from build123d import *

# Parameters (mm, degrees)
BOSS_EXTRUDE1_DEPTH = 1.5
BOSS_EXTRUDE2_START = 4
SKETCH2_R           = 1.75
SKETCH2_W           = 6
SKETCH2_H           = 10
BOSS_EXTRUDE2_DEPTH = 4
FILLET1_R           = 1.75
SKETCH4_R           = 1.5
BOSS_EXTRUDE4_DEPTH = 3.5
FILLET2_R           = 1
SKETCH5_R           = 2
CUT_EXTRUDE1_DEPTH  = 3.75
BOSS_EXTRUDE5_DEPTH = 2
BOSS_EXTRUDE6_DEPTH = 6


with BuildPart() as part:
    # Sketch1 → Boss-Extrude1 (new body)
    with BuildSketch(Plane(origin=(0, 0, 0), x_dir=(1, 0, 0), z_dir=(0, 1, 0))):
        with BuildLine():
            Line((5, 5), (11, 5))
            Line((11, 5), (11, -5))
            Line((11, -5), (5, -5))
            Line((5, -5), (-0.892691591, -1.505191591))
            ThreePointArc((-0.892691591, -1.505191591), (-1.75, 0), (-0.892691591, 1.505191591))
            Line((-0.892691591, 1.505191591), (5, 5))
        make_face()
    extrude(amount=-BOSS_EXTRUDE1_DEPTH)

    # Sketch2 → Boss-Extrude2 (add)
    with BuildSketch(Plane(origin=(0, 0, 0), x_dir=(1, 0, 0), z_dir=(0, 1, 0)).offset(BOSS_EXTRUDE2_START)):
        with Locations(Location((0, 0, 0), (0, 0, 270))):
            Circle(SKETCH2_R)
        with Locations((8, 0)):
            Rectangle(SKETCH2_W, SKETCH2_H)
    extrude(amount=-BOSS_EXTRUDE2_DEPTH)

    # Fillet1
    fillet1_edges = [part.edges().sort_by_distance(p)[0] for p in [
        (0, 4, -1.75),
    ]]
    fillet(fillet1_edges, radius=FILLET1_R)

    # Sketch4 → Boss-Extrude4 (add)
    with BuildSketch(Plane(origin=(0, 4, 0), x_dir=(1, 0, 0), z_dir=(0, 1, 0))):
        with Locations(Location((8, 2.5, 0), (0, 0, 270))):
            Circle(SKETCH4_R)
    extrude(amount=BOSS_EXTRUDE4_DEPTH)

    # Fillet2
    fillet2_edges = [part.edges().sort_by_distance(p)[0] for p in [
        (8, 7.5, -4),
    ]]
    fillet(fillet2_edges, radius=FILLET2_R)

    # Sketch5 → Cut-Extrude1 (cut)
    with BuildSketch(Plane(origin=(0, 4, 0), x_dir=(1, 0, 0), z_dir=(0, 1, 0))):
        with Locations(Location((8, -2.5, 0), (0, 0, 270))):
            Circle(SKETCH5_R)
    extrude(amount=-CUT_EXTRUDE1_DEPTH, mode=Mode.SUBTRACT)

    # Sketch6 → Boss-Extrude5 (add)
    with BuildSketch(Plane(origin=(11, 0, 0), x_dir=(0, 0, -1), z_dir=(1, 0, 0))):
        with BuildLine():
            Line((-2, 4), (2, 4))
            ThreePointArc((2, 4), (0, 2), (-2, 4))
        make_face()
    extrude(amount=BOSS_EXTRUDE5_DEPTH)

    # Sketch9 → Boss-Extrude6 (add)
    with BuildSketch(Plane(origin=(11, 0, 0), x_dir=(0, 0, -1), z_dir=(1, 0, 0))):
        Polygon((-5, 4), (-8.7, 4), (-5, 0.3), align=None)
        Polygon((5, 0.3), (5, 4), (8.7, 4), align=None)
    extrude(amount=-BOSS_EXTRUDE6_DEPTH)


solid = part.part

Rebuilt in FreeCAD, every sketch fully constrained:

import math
import FreeCAD as App
import Part
import Sketcher


def edges_at(feature, points):
    """Names of the edges that pass closest to the given points."""
    edges = feature.Shape.Edges
    near = lambda p: min(range(len(edges)), key=lambda i: edges[i].distToShape(Part.Vertex(*p))[0])
    return sorted({f"Edge{near(p) + 1}" for p in points})

doc = App.newDocument("Part")
body = doc.addObject("PartDesign::Body", "Body")

# Sketch on XZ plane
sketch1 = body.newObject("Sketcher::SketchObject", "Sketch")
sketch1.AttachmentSupport = (doc.getObject("XZ_Plane"), [""])
sketch1.MapMode = "FlatFace"
sketch1.addGeometry([
    Part.LineSegment(App.Vector(11, -5, 0), App.Vector(5, -5, 0)),  # 0
    Part.LineSegment(App.Vector(5, -5, 0), App.Vector(-0.9, -1.5, 0)),  # 1
    Part.ArcOfCircle(Part.Circle(App.Vector(0, 0, 0), App.Vector(0, 0, 1), 1.8), math.radians(121), math.radians(239)),  # 2
    Part.LineSegment(App.Vector(-0.9, 1.5, 0), App.Vector(5, 5, 0)),  # 3
    Part.LineSegment(App.Vector(5, 5, 0), App.Vector(11, 5, 0)),  # 4
    Part.LineSegment(App.Vector(11, 5, 0), App.Vector(11, -5, 0)),  # 5
], False)
sketch1.addConstraint([
    Sketcher.Constraint("Coincident", 0, 2, 1, 1),
    Sketcher.Constraint("Tangent", 1, 2, 2, 2),
    Sketcher.Constraint("Tangent", 2, 1, 3, 1),
    Sketcher.Constraint("Coincident", 3, 2, 4, 1),
    Sketcher.Constraint("Coincident", 4, 2, 5, 1),
    Sketcher.Constraint("Coincident", 5, 2, 0, 1),
    Sketcher.Constraint("Horizontal", 0),
    Sketcher.Constraint("Horizontal", 4),
    Sketcher.Constraint("Vertical", 5),
    Sketcher.Constraint("Coincident", 2, 3, -1, 1),
    Sketcher.Constraint("Symmetric", 0, 2, 3, 2, -1),
    Sketcher.Constraint("DistanceX", 0, 2, 0, 1, 6.0),
    Sketcher.Constraint("DistanceY", 5, 2, 5, 1, 10.0),
    Sketcher.Constraint("Radius", 2, 1.75),
    Sketcher.Constraint("DistanceX", -1, 1, 0, 2, 5.0),
])
pad1 = body.newObject("PartDesign::Pad", "Pad")
pad1.Profile = sketch1
pad1.Length = 1.5

# Sketch on XZ plane
sketch2 = body.newObject("Sketcher::SketchObject", "Sketch001")
sketch2.AttachmentSupport = (doc.getObject("XZ_Plane"), [""])
sketch2.MapMode = "FlatFace"
sketch2.AttachmentOffset = App.Placement(App.Vector(0, 0, -4), App.Rotation())
sketch2.addGeometry([
    Part.Circle(App.Vector(0, 0, 0), App.Vector(0, 0, 1), 1.8),  # 0
    Part.LineSegment(App.Vector(5, -5, 0), App.Vector(5, 5, 0)),  # 1
    Part.LineSegment(App.Vector(5, 5, 0), App.Vector(11, 5, 0)),  # 2
    Part.LineSegment(App.Vector(11, 5, 0), App.Vector(11, -5, 0)),  # 3
    Part.LineSegment(App.Vector(11, -5, 0), App.Vector(5, -5, 0)),  # 4
], False)
sketch2.addConstraint([
    Sketcher.Constraint("Coincident", 1, 2, 2, 1),
    Sketcher.Constraint("Coincident", 2, 2, 3, 1),
    Sketcher.Constraint("Coincident", 3, 2, 4, 1),
    Sketcher.Constraint("Coincident", 4, 2, 1, 1),
    Sketcher.Constraint("Vertical", 1),
    Sketcher.Constraint("Horizontal", 2),
    Sketcher.Constraint("Vertical", 3),
    Sketcher.Constraint("Horizontal", 4),
    Sketcher.Constraint("Coincident", 0, 3, -1, 1),
    Sketcher.Constraint("Diameter", 0, 3.5),
    Sketcher.Constraint("DistanceX", 2, 1, 2, 2, 6.0),
    Sketcher.Constraint("DistanceY", 1, 1, 1, 2, 10.0),
    Sketcher.Constraint("DistanceX", -1, 1, 1, 2, 5.0),
    Sketcher.Constraint("DistanceY", -1, 1, 1, 2, 5.0),
])
pad2 = body.newObject("PartDesign::Pad", "Pad001")
pad2.Profile = sketch2
pad2.Length = 4
doc.recompute()

fillet = body.newObject("PartDesign::Fillet", "Fillet")
fillet.Base = (pad2, edges_at(pad2, [(0, 4, -1.75)]))
fillet.Radius = 1.75

# Sketch on XZ plane
sketch3 = body.newObject("Sketcher::SketchObject", "Sketch002")
sketch3.AttachmentSupport = (doc.getObject("XZ_Plane"), [""])
sketch3.MapMode = "FlatFace"
sketch3.AttachmentOffset = App.Placement(App.Vector(0, 0, -4), App.Rotation())
sketch3.addGeometry(Part.Circle(App.Vector(8, -2.5, 0), App.Vector(0, 0, 1), 1.5), False)
sketch3.addConstraint([
    Sketcher.Constraint("Diameter", 0, 3.0),
    Sketcher.Constraint("DistanceX", -1, 1, 0, 3, 8.0),
    Sketcher.Constraint("DistanceY", 0, 3, -1, 1, 2.5),
])
pad3 = body.newObject("PartDesign::Pad", "Pad002")
pad3.Profile = sketch3
pad3.Length = 3.5
pad3.Reversed = True
doc.recompute()

fillet2 = body.newObject("PartDesign::Fillet", "Fillet001")
fillet2.Base = (pad3, edges_at(pad3, [(8, 7.5, -4)]))
fillet2.Radius = 1

# Sketch on XZ plane
sketch4 = body.newObject("Sketcher::SketchObject", "Sketch003")
sketch4.AttachmentSupport = (doc.getObject("XZ_Plane"), [""])
sketch4.MapMode = "FlatFace"
sketch4.AttachmentOffset = App.Placement(App.Vector(0, 0, -4), App.Rotation())
sketch4.addGeometry(Part.Circle(App.Vector(8, 2.5, 0), App.Vector(0, 0, 1), 2), False)
sketch4.addConstraint([
    Sketcher.Constraint("Diameter", 0, 4.0),
    Sketcher.Constraint("DistanceX", -1, 1, 0, 3, 8.0),
    Sketcher.Constraint("DistanceY", -1, 1, 0, 3, 2.5),
])
pocket1 = body.newObject("PartDesign::Pocket", "Pocket")
pocket1.Profile = sketch4
pocket1.Length = 3.75
pocket1.Reversed = True

# Sketch on YZ plane
sketch5 = body.newObject("Sketcher::SketchObject", "Sketch004")
sketch5.AttachmentSupport = (doc.getObject("YZ_Plane"), [""])
sketch5.MapMode = "FlatFace"
sketch5.AttachmentOffset = App.Placement(App.Vector(0, 0, 11), App.Rotation())
sketch5.addGeometry([
    Part.LineSegment(App.Vector(4, -2, 0), App.Vector(4, 2, 0)),
    Part.ArcOfCircle(Part.Circle(App.Vector(4, 0, 0), App.Vector(0, 0, 1), 2), math.radians(90), math.radians(270)),
], False)
sketch5.addConstraint([
    Sketcher.Constraint("Coincident", 0, 1, 1, 2),
    Sketcher.Constraint("Coincident", 1, 1, 0, 2),
    Sketcher.Constraint("Vertical", 0),
    Sketcher.Constraint("PointOnObject", 1, 3, -1),
    Sketcher.Constraint("Vertical", 1, 3, 0, 1),
    Sketcher.Constraint("Radius", 1, 2.0),
    Sketcher.Constraint("DistanceX", -1, 1, 1, 3, 4.0),
])
pad4 = body.newObject("PartDesign::Pad", "Pad003")
pad4.Profile = sketch5
pad4.Length = 2

# Sketch on YZ plane
sketch6 = body.newObject("Sketcher::SketchObject", "Sketch005")
sketch6.AttachmentSupport = (doc.getObject("YZ_Plane"), [""])
sketch6.MapMode = "FlatFace"
sketch6.AttachmentOffset = App.Placement(App.Vector(0, 0, 11), App.Rotation())
sketch6.addGeometry([
    Part.LineSegment(App.Vector(4, 5, 0), App.Vector(4, 8.7, 0)),  # 0
    Part.LineSegment(App.Vector(4, 8.7, 0), App.Vector(0.3, 5, 0)),  # 1
    Part.LineSegment(App.Vector(0.3, 5, 0), App.Vector(4, 5, 0)),  # 2
    Part.LineSegment(App.Vector(4, -5, 0), App.Vector(0.3, -5, 0)),  # 3
    Part.LineSegment(App.Vector(0.3, -5, 0), App.Vector(4, -8.7, 0)),  # 4
    Part.LineSegment(App.Vector(4, -8.7, 0), App.Vector(4, -5, 0)),  # 5
], False)
sketch6.addConstraint([
    Sketcher.Constraint("Coincident", 0, 2, 1, 1),
    Sketcher.Constraint("Coincident", 1, 2, 2, 1),
    Sketcher.Constraint("Coincident", 2, 2, 0, 1),
    Sketcher.Constraint("Coincident", 3, 2, 4, 1),
    Sketcher.Constraint("Coincident", 4, 2, 5, 1),
    Sketcher.Constraint("Coincident", 5, 2, 3, 1),
    Sketcher.Constraint("Vertical", 0),
    Sketcher.Constraint("Horizontal", 2),
    Sketcher.Constraint("Horizontal", 3),
    Sketcher.Constraint("Vertical", 5),
    Sketcher.Constraint("Symmetric", 1, 2, 3, 2, -1),
    Sketcher.Constraint("Symmetric", 0, 2, 4, 2, -1),
    Sketcher.Constraint("Perpendicular", 1, 4),
    Sketcher.Constraint("DistanceX", 2, 1, 2, 2, 3.7),
    Sketcher.Constraint("DistanceX", -1, 1, 0, 2, 4.0),
    Sketcher.Constraint("DistanceY", -1, 1, 1, 2, 5.0),
])
pad5 = body.newObject("PartDesign::Pad", "Pad004")
pad5.Profile = sketch6
pad5.Length = 6
pad5.Reversed = True

doc.recompute()
